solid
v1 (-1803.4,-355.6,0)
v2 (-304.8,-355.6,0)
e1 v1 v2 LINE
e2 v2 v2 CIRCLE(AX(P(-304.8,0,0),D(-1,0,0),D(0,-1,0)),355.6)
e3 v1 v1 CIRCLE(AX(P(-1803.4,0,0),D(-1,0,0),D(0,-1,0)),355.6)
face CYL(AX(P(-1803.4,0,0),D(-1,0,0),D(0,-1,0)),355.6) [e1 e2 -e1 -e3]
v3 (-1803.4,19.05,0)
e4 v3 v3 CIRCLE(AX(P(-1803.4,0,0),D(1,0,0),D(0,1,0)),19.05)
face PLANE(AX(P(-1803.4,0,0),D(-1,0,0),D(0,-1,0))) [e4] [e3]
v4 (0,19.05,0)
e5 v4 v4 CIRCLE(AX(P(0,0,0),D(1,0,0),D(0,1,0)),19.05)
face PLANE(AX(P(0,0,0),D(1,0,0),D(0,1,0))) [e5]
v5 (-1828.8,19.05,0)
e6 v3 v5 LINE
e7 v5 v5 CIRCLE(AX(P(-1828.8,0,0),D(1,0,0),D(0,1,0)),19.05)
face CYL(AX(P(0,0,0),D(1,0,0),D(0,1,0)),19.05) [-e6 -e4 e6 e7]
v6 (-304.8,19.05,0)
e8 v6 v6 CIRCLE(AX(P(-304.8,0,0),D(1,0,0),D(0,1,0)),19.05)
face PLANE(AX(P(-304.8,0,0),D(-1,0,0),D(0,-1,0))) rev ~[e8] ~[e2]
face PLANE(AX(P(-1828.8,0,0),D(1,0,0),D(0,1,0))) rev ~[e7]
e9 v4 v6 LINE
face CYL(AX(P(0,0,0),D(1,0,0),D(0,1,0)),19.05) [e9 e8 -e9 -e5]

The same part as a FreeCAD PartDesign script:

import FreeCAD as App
import Part
import Sketcher
from FreeCAD import Vector
Q = App.Units.Quantity

doc = App.newDocument("Part")
body = doc.addObject("PartDesign::Body", "Body")

# Sketch on YZ plane
sketch1 = body.newObject("Sketcher::SketchObject", "Sketch")
sketch1.AttachmentSupport = (doc.getObject("YZ_Plane"), [""])
sketch1.MapMode = "FlatFace"
sketch1.addGeometry(Part.Circle(Vector(0, 0, 0), Vector(0, 0, 1), 19), False)
sketch1.addConstraint([
    Sketcher.Constraint("Coincident", 0, 3, -1, 1),
    Sketcher.Constraint("Diameter", 0, Q("1.5 in")),
])
pad1 = body.newObject("PartDesign::Pad", "Pad")
pad1.Profile = sketch1
pad1.Length = Q("72 in")
pad1.Reversed = True

# Sketch on YZ plane
sketch2 = body.newObject("Sketcher::SketchObject", "Sketch001")
sketch2.AttachmentSupport = (doc.getObject("YZ_Plane"), [""])
sketch2.MapMode = "FlatFace"
sketch2.AttachmentOffset = App.Placement(Vector(0, 0, -71 * 25.4), App.Rotation())
sketch2.addGeometry(Part.Circle(Vector(0, 0, 0), Vector(0, 0, 1), 356), False)
sketch2.addConstraint([
    Sketcher.Constraint("Coincident", 0, 3, -1, 1),
    Sketcher.Constraint("Diameter", 0, Q("28 in")),
])
pad2 = body.newObject("PartDesign::Pad", "Pad001")
pad2.Profile = sketch2
pad2.Length = Q("59 in")

doc.recompute()
